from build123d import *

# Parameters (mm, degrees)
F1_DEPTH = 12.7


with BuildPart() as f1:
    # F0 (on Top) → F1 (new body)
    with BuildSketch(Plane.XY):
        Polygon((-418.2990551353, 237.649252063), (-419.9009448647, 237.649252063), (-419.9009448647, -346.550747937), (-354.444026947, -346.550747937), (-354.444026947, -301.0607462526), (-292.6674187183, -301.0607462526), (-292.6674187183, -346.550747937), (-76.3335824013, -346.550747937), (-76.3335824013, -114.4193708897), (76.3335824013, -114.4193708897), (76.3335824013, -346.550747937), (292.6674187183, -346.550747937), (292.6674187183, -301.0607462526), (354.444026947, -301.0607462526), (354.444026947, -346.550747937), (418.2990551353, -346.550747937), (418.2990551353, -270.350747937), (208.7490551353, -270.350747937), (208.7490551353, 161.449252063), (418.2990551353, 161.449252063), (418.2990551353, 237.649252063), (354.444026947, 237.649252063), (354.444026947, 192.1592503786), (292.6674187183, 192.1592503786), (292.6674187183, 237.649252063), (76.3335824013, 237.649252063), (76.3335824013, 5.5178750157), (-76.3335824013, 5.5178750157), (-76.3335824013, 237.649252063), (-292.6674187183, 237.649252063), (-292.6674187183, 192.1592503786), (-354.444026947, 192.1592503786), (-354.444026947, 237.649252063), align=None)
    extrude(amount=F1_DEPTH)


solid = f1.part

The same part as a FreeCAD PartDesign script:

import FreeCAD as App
import Part
import Sketcher
from FreeCAD import Vector
Q = App.Units.Quantity

doc = App.newDocument("Part")
body = doc.addObject("PartDesign::Body", "Body")

# Sketch on XY plane
sketch1 = body.newObject("Sketcher::SketchObject", "Sketch")
sketch1.AttachmentSupport = (doc.getObject("XY_Plane"), [""])
sketch1.MapMode = "FlatFace"
sketch1.addGeometry([
    Part.LineSegment(Vector(-420, 238, 0), Vector(-420, -347, 0)),  # 0
    Part.LineSegment(Vector(-420, -347, 0), Vector(-354, -347, 0)),  # 1
    Part.LineSegment(Vector(-354, -347, 0), Vector(-354, -301, 0)),  # 2
    Part.LineSegment(Vector(-354, -301, 0), Vector(-293, -301, 0)),  # 3
    Part.LineSegment(Vector(-293, -301, 0), Vector(-293, -347, 0)),  # 4
    Part.LineSegment(Vector(-293, -347, 0), Vector(-76, -347, 0)),  # 5
    Part.LineSegment(Vector(-76, -347, 0), Vector(-76, -114, 0)),  # 6
    Part.LineSegment(Vector(-76, -114, 0), Vector(76, -114, 0)),  # 7
    Part.LineSegment(Vector(76, -114, 0), Vector(76, -347, 0)),  # 8
    Part.LineSegment(Vector(76, -347, 0), Vector(293, -347, 0)),  # 9
    Part.LineSegment(Vector(293, -347, 0), Vector(293, -301, 0)),  # 10
    Part.LineSegment(Vector(293, -301, 0), Vector(354, -301, 0)),  # 11
    Part.LineSegment(Vector(354, -301, 0), Vector(354, -347, 0)),  # 12
    Part.LineSegment(Vector(354, -347, 0), Vector(418, -347, 0)),  # 13
    Part.LineSegment(Vector(418, -347, 0), Vector(418, -270, 0)),  # 14
    Part.LineSegment(Vector(418, -270, 0), Vector(209, -270, 0)),  # 15
    Part.LineSegment(Vector(209, -270, 0), Vector(209, 161, 0)),  # 16
    Part.LineSegment(Vector(209, 161, 0), Vector(418, 161, 0)),  # 17
    Part.LineSegment(Vector(418, 161, 0), Vector(418, 238, 0)),  # 18
    Part.LineSegment(Vector(418, 238, 0), Vector(354, 238, 0)),  # 19
    Part.LineSegment(Vector(354, 238, 0), Vector(354, 192, 0)),  # 20
    Part.LineSegment(Vector(354, 192, 0), Vector(293, 192, 0)),  # 21
    Part.LineSegment(Vector(293, 192, 0), Vector(293, 238, 0)),  # 22
    Part.LineSegment(Vector(293, 238, 0), Vector(76, 238, 0)),  # 23
    Part.LineSegment(Vector(76, 238, 0), Vector(76, 6, 0)),  # 24
    Part.LineSegment(Vector(76, 6, 0), Vector(-76, 6, 0)),  # 25
    Part.LineSegment(Vector(-76, 6, 0), Vector(-76, 238, 0)),  # 26
    Part.LineSegment(Vector(-76, 238, 0), Vector(-293, 238, 0)),  # 27
    Part.LineSegment(Vector(-293, 238, 0), Vector(-293, 192, 0)),  # 28
    Part.LineSegment(Vector(-293, 192, 0), Vector(-354, 192, 0)),  # 29
    Part.LineSegment(Vector(-354, 192, 0), Vector(-354, 238, 0)),  # 30
    Part.LineSegment(Vector(-354, 238, 0), Vector(-420, 238, 0)),  # 31
], False)
sketch1.addConstraint([
    Sketcher.Constraint("Coincident", 0, 2, 1, 1),
    Sketcher.Constraint("Coincident", 1, 2, 2, 1),
    Sketcher.Constraint("Coincident", 2, 2, 3, 1),
    Sketcher.Constraint("Coincident", 3, 2, 4, 1),
    Sketcher.Constraint("Coincident", 4, 2, 5, 1),
    Sketcher.Constraint("Coincident", 5, 2, 6, 1),
    Sketcher.Constraint("Coincident", 6, 2, 7, 1),
    Sketcher.Constraint("Coincident", 7, 2, 8, 1),
    Sketcher.Constraint("Coincident", 8, 2, 9, 1),
    Sketcher.Constraint("Coincident", 9, 2, 10, 1),
    Sketcher.Constraint("Coincident", 10, 2, 11, 1),
    Sketcher.Constraint("Coincident", 11, 2, 12, 1),
    Sketcher.Constraint("Coincident", 12, 2, 13, 1),
    Sketcher.Constraint("Coincident", 13, 2, 14, 1),
    Sketcher.Constraint("Coincident", 14, 2, 15, 1),
    Sketcher.Constraint("Coincident", 15, 2, 16, 1),
    Sketcher.Constraint("Coincident", 16, 2, 17, 1),
    Sketcher.Constraint("Coincident", 17, 2, 18, 1),
    Sketcher.Constraint("Coincident", 18, 2, 19, 1),
    Sketcher.Constraint("Coincident", 19, 2, 20, 1),
    Sketcher.Constraint("Coincident", 20, 2, 21, 1),
    Sketcher.Constraint("Coincident", 21, 2, 22, 1),
    Sketcher.Constraint("Coincident", 22, 2, 23, 1),
    Sketcher.Constraint("Coincident", 23, 2, 24, 1),
    Sketcher.Constraint("Coincident", 24, 2, 25, 1),
    Sketcher.Constraint("Coincident", 25, 2, 26, 1),
    Sketcher.Constraint("Coincident", 26, 2, 27, 1),
    Sketcher.Constraint("Coincident", 27, 2, 28, 1),
    Sketcher.Constraint("Coincident", 28, 2, 29, 1),
    Sketcher.Constraint("Coincident", 29, 2, 30, 1),
    Sketcher.Constraint("Coincident", 30, 2, 31, 1),
    Sketcher.Constraint("Coincident", 31, 2, 0, 1),
    Sketcher.Constraint("Vertical", 0),
    Sketcher.Constraint("Horizontal", 1),
    Sketcher.Constraint("Vertical", 2),
    Sketcher.Constraint("Horizontal", 3),
    Sketcher.Constraint("Vertical", 4),
    Sketcher.Constraint("Horizontal", 5),
    Sketcher.Constraint("Vertical", 6),
    Sketcher.Constraint("Horizontal", 7),
    Sketcher.Constraint("Vertical", 8),
    Sketcher.Constraint("Horizontal", 9),
    Sketcher.Constraint("Vertical", 10),
    Sketcher.Constraint("Horizontal", 11),
    Sketcher.Constraint("Vertical", 12),
    Sketcher.Constraint("Horizontal", 13),
    Sketcher.Constraint("Vertical", 14),
    Sketcher.Constraint("Horizontal", 15),
    Sketcher.Constraint("Vertical", 16),
    Sketcher.Constraint("Horizontal", 17),
    Sketcher.Constraint("Vertical", 18),
    Sketcher.Constraint("Horizontal", 19),
    Sketcher.Constraint("Vertical", 20),
    Sketcher.Constraint("Horizontal", 21),
    Sketcher.Constraint("Vertical", 22),
    Sketcher.Constraint("Horizontal", 23),
    Sketcher.Constraint("Vertical", 24),
    Sketcher.Constraint("Horizontal", 25),
    Sketcher.Constraint("Vertical", 26),
    Sketcher.Constraint("Horizontal", 27),
    Sketcher.Constraint("Vertical", 28),
    Sketcher.Constraint("Horizontal", 29),
    Sketcher.Constraint("Vertical", 30),
    Sketcher.Constraint("Horizontal", 31),
    Sketcher.Constraint("Symmetric", 5, 2, 8, 2, -2),
    Sketcher.Constraint("Symmetric", 3, 2, 10, 2, -2),
    Sketcher.Constraint("Symmetric", 1, 2, 12, 2, -2),
    Sketcher.Constraint("Symmetric", 23, 2, 26, 2, -2),
    Sketcher.Constraint("Symmetric", 21, 2, 28, 2, -2),
    Sketcher.Constraint("Symmetric", 19, 2, 30, 2, -2),
    Sketcher.Constraint("Horizontal", 1, 2, 4, 2),
    Sketcher.Constraint("Horizontal", 19, 2, 22, 2),
    Sketcher.Constraint("Vertical", 14, 2, 17, 2),
    Sketcher.Constraint("Vertical", 12, 2, 19, 2),
    Sketcher.Constraint("Vertical", 10, 2, 21, 2),
    Sketcher.Constraint("Vertical", 8, 2, 23, 2),
    Sketcher.Constraint("Equal", 14, 18),
    Sketcher.Constraint("Equal", 12, 20),
    Sketcher.Constraint("Equal", 8, 24),
    Sketcher.Constraint("DistanceY", 0, 2, 0, 1, Q("23 in")),
    Sketcher.Constraint("DistanceY", 14, 1, 14, 2, Q("3 in")),
    Sketcher.Constraint("DistanceX", 15, 2, 15, 1, Q("8.25 in")),
    Sketcher.Constraint("DistanceY", 2, 1, 2, 2, Q("45.490002 mm")),
    Sketcher.Constraint("DistanceX", 3, 1, 3, 2, Q("61.776608 mm")),
    Sketcher.Constraint("DistanceX", 13, 1, 13, 2, Q("63.855028 mm")),
    Sketcher.Constraint("DistanceX", 3, 2, 7, 2, Q("369.001001 mm")),
    Sketcher.Constraint("DistanceX", 1, 1, 1, 2, Q("65.456918 mm")),
    Sketcher.Constraint("DistanceX", 5, 1, 5, 2, Q("216.333836 mm")),
    Sketcher.Constraint("DistanceY", 6, 1, 6, 2, Q("232.131377 mm")),
    Sketcher.Constraint("DistanceY", 6, 2, -1, 1, Q("114.419371 mm")),
])
pad1 = body.newObject("PartDesign::Pad", "Pad")
pad1.Profile = sketch1
pad1.Length = Q("0.5 in")

doc.recompute()
